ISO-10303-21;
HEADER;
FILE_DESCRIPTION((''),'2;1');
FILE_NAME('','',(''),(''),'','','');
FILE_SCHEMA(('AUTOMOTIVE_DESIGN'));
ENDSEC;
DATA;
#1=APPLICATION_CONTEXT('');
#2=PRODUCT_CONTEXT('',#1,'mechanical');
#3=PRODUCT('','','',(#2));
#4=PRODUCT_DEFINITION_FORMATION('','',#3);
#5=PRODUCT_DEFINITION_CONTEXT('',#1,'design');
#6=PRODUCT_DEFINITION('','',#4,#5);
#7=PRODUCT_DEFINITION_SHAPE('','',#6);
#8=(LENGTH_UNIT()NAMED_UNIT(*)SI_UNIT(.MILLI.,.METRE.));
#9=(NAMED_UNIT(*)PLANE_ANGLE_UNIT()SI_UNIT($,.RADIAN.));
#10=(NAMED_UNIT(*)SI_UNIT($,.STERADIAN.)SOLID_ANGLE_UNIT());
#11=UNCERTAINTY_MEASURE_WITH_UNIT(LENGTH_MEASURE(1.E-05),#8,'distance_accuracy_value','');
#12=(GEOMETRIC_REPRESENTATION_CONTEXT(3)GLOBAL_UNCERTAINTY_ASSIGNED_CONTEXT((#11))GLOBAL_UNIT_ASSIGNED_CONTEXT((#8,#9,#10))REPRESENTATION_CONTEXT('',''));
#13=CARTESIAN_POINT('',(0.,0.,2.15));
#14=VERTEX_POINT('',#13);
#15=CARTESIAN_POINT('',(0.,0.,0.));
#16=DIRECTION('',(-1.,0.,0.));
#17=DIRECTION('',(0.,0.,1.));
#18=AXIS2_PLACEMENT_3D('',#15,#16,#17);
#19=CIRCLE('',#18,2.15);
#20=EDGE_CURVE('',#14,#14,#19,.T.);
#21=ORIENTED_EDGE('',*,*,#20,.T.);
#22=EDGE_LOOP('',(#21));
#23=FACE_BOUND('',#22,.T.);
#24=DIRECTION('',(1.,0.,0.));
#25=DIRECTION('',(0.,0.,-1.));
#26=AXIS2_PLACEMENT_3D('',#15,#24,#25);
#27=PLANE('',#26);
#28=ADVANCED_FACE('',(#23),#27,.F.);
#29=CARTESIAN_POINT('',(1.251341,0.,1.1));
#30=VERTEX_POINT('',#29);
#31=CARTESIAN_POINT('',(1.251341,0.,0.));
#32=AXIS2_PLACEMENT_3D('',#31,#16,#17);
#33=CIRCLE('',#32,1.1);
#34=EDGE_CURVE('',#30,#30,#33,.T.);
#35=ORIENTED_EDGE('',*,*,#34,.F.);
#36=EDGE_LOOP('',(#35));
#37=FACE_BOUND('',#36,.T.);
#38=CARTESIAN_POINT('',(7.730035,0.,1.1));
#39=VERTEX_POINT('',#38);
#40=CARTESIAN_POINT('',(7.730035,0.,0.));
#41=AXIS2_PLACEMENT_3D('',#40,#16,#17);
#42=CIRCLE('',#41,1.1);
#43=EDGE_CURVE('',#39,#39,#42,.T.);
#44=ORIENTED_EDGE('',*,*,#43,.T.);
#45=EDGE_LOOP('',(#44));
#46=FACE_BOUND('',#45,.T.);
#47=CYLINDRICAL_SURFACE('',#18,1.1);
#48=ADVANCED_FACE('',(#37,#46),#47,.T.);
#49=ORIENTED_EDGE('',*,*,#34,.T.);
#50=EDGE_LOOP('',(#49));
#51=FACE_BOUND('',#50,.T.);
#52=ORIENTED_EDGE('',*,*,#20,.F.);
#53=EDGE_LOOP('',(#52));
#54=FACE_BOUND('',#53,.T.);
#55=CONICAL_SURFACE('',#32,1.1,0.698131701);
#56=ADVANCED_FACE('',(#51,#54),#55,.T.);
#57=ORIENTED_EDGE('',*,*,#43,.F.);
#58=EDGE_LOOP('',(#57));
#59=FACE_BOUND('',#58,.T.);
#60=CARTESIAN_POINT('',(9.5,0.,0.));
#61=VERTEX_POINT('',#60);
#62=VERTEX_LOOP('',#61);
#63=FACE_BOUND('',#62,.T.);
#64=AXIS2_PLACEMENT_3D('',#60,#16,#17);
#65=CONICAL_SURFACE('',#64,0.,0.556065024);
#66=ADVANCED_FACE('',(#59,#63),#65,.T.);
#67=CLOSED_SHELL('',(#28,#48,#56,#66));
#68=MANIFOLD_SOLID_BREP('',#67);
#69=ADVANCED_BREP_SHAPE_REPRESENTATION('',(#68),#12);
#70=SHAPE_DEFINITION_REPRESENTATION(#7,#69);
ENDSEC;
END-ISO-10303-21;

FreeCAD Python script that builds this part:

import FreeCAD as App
import Part
import Sketcher

V = App.Vector
Q = App.Units.Quantity

doc = App.newDocument("Part")
body = doc.addObject("PartDesign::Body", "Body")

sketch1 = body.newObject("Sketcher::SketchObject", "Sketch")
sketch1.AttachmentSupport = (doc.getObject("XY_Plane"), [""])
sketch1.MapMode = "FlatFace"
sketch1.addGeometry([
    Part.LineSegment(V(0, 2.15, 0), V(0, 0, 0)),
    Part.LineSegment(V(0, 0, 0), V(9.5, 0, 0)),
    Part.LineSegment(V(9.5, 0, 0), V(7.730035, 1.1, 0)),
    Part.LineSegment(V(7.730035, 1.1, 0), V(1.251341, 1.1, 0)),
    Part.LineSegment(V(1.251341, 1.1, 0), V(0, 2.15, 0)),
], False)
sketch1.addConstraint([
    Sketcher.Constraint("Coincident", 0, 2, 1, 1),
    Sketcher.Constraint("Coincident", 1, 2, 2, 1),
    Sketcher.Constraint("Coincident", 2, 2, 3, 1),
    Sketcher.Constraint("Coincident", 3, 2, 4, 1),
    Sketcher.Constraint("Coincident", 4, 2, 0, 1),
    Sketcher.Constraint("Vertical", 0),
    Sketcher.Constraint("Horizontal", 1),
    Sketcher.Constraint("Horizontal", 3),
    Sketcher.Constraint("Coincident", 0, 2, -1, 1),
    Sketcher.Constraint("Angle", 4, Q("140 deg")),
    Sketcher.Constraint("DistanceX", 1, 1, 1, 2, 9.5),
    Sketcher.Constraint("DistanceY", 0, 2, 0, 1, 2.15),
    Sketcher.Constraint("DistanceY", -1, 1, 2, 2, 1.1),
    Sketcher.Constraint("DistanceX", 3, 2, 3, 1, 6.478694),
])
revolution = body.newObject("PartDesign::Revolution", "Revolution")
revolution.Profile = sketch1
revolution.ReferenceAxis = (sketch1, ["H_Axis"])
revolution.Angle = 360

doc.recompute()
